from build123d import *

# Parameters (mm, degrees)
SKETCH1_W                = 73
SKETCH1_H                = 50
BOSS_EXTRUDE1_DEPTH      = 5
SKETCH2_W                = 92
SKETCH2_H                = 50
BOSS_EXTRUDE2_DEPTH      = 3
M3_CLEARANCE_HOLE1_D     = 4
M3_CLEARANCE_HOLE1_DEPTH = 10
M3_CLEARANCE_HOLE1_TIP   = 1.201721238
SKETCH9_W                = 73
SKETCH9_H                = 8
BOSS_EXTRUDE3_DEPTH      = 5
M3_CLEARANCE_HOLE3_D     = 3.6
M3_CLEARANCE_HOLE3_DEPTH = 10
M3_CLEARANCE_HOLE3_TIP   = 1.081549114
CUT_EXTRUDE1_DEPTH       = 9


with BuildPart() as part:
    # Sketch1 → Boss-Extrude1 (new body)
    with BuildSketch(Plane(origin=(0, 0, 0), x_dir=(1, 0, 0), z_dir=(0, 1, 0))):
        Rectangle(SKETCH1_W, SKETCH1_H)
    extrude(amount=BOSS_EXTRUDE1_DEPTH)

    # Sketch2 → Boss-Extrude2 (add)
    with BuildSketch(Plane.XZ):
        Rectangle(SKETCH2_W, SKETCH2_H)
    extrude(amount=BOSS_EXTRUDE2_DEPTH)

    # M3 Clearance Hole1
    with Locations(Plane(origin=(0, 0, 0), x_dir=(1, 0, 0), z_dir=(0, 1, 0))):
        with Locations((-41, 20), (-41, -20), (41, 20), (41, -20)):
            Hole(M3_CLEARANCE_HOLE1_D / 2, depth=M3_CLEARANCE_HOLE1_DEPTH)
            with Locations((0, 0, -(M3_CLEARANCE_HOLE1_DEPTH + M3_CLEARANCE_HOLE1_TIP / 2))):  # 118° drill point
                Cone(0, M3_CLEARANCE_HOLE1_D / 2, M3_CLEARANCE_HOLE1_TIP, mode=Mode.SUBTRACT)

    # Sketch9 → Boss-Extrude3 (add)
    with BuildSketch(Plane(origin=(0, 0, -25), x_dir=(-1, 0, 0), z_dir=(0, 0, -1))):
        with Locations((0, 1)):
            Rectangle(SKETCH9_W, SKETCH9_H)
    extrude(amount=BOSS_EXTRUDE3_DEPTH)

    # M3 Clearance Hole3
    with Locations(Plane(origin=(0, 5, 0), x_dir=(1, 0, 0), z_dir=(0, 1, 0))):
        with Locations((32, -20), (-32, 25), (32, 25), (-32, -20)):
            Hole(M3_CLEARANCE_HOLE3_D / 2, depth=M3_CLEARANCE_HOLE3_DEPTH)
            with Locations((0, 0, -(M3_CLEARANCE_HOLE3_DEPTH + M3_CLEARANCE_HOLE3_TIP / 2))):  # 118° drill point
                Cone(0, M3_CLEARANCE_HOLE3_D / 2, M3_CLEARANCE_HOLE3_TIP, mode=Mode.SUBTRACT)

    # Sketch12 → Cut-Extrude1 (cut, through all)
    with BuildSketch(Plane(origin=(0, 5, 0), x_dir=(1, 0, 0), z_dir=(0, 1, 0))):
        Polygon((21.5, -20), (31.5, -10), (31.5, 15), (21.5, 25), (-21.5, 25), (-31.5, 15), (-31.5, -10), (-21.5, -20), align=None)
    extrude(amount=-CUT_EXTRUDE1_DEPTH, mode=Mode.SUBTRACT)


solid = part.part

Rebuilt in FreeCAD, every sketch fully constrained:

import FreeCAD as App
import Part
import Sketcher
from FreeCAD import Vector
Q = App.Units.Quantity

doc = App.newDocument("Part")
body = doc.addObject("PartDesign::Body", "Body")

# Sketch on XZ plane
sketch1 = body.newObject("Sketcher::SketchObject", "Sketch")
sketch1.AttachmentSupport = (doc.getObject("XZ_Plane"), [""])
sketch1.MapMode = "FlatFace"
sketch1.addGeometry([
    Part.LineSegment(Vector(-36, -25, 0), Vector(-36, 25, 0)),
    Part.LineSegment(Vector(-36, 25, 0), Vector(36, 25, 0)),
    Part.LineSegment(Vector(36, 25, 0), Vector(36, -25, 0)),
    Part.LineSegment(Vector(36, -25, 0), Vector(-36, -25, 0)),
], False)
sketch1.addConstraint([
    Sketcher.Constraint("Coincident", 0, 2, 1, 1),
    Sketcher.Constraint("Coincident", 1, 2, 2, 1),
    Sketcher.Constraint("Coincident", 2, 2, 3, 1),
    Sketcher.Constraint("Coincident", 3, 2, 0, 1),
    Sketcher.Constraint("Vertical", 0),
    Sketcher.Constraint("Horizontal", 1),
    Sketcher.Constraint("Vertical", 2),
    Sketcher.Constraint("Horizontal", 3),
    Sketcher.Constraint("Symmetric", 0, 2, 2, 2, -1, 1),
    Sketcher.Constraint("DistanceX", 1, 1, 1, 2, Q("73 mm")),
    Sketcher.Constraint("DistanceY", 0, 1, 0, 2, Q("50 mm")),
])
pad1 = body.newObject("PartDesign::Pad", "Pad")
pad1.Profile = sketch1
pad1.Length = 5
pad1.Reversed = True

# Sketch on XZ plane
sketch2 = body.newObject("Sketcher::SketchObject", "Sketch001")
sketch2.AttachmentSupport = (doc.getObject("XZ_Plane"), [""])
sketch2.MapMode = "FlatFace"
sketch2.addGeometry([
    Part.LineSegment(Vector(-46, 25, 0), Vector(-46, -25, 0)),
    Part.LineSegment(Vector(-46, -25, 0), Vector(46, -25, 0)),
    Part.LineSegment(Vector(46, -25, 0), Vector(46, 25, 0)),
    Part.LineSegment(Vector(46, 25, 0), Vector(-46, 25, 0)),
], False)
sketch2.addConstraint([
    Sketcher.Constraint("Coincident", 0, 2, 1, 1),
    Sketcher.Constraint("Coincident", 1, 2, 2, 1),
    Sketcher.Constraint("Coincident", 2, 2, 3, 1),
    Sketcher.Constraint("Coincident", 3, 2, 0, 1),
    Sketcher.Constraint("Vertical", 0),
    Sketcher.Constraint("Horizontal", 1),
    Sketcher.Constraint("Vertical", 2),
    Sketcher.Constraint("Horizontal", 3),
    Sketcher.Constraint("Symmetric", 0, 2, 2, 2, -1, 1),
    Sketcher.Constraint("DistanceX", 1, 1, 1, 2, Q("92 mm")),
    Sketcher.Constraint("DistanceY", 0, 2, 0, 1, Q("50 mm")),
])
pad2 = body.newObject("PartDesign::Pad", "Pad001")
pad2.Profile = sketch2
pad2.Length = 3

# Sketch on XZ plane
sketch3 = body.newObject("Sketcher::SketchObject", "Sketch002")
sketch3.AttachmentSupport = (doc.getObject("XZ_Plane"), [""])
sketch3.MapMode = "FlatFace"
sketch3.addGeometry([
    Part.Circle(Vector(-41, -20, 0), Vector(0, 0, 1), 2),
    Part.Circle(Vector(-41, 20, 0), Vector(0, 0, 1), 2),
    Part.Circle(Vector(41, -20, 0), Vector(0, 0, 1), 2),
    Part.Circle(Vector(41, 20, 0), Vector(0, 0, 1), 2),
], False)
sketch3.addConstraint([
    Sketcher.Constraint("Equal", 0, 1),
    Sketcher.Constraint("Equal", 1, 2),
    Sketcher.Constraint("Equal", 2, 3),
    Sketcher.Constraint("Symmetric", 1, 3, 2, 3, -1, 1),
    Sketcher.Constraint("Symmetric", 0, 3, 3, 3, -1, 1),
    Sketcher.Constraint("Symmetric", 0, 3, 2, 3, -2),
    Sketcher.Constraint("Diameter", 0, Q("4 mm")),
    Sketcher.Constraint("DistanceX", 0, 3, -1, 1, Q("41 mm")),
    Sketcher.Constraint("DistanceY", 0, 3, -1, 1, Q("20 mm")),
])
doc.recompute()
hole = body.newObject("PartDesign::Hole", "Hole")
hole.Profile = sketch3
hole.ThreadType = "None"
hole.Diameter = 4
hole.DepthType = "Dimension"
hole.Depth = 10
hole.DrillPoint = "Angled"
hole.DrillPointAngle = 118
hole.Reversed = True

# Sketch on XY plane
sketch4 = body.newObject("Sketcher::SketchObject", "Sketch003")
sketch4.AttachmentSupport = (doc.getObject("XY_Plane"), [""])
sketch4.MapMode = "FlatFace"
sketch4.AttachmentOffset = App.Placement(Vector(0, 0, -25), App.Rotation())
sketch4.addGeometry([
    Part.LineSegment(Vector(36, 5, 0), Vector(36, -3, 0)),
    Part.LineSegment(Vector(36, -3, 0), Vector(-36, -3, 0)),
    Part.LineSegment(Vector(-36, -3, 0), Vector(-36, 5, 0)),
    Part.LineSegment(Vector(-36, 5, 0), Vector(36, 5, 0)),
], False)
sketch4.addConstraint([
    Sketcher.Constraint("Coincident", 0, 2, 1, 1),
    Sketcher.Constraint("Coincident", 1, 2, 2, 1),
    Sketcher.Constraint("Coincident", 2, 2, 3, 1),
    Sketcher.Constraint("Coincident", 3, 2, 0, 1),
    Sketcher.Constraint("Vertical", 0),
    Sketcher.Constraint("Horizontal", 1),
    Sketcher.Constraint("Vertical", 2),
    Sketcher.Constraint("Horizontal", 3),
    Sketcher.Constraint("DistanceX", 1, 2, 1, 1, Q("73 mm")),
    Sketcher.Constraint("DistanceY", 0, 2, 0, 1, Q("8 mm")),
    Sketcher.Constraint("DistanceY", 0, 2, -1, 1, Q("3 mm")),
    Sketcher.Constraint("DistanceX", -1, 1, 0, 2, Q("36.5 mm")),
])
pad3 = body.newObject("PartDesign::Pad", "Pad002")
pad3.Profile = sketch4
pad3.Length = 5
pad3.Reversed = True

# Sketch on XZ plane
sketch5 = body.newObject("Sketcher::SketchObject", "Sketch004")
sketch5.AttachmentSupport = (doc.getObject("XZ_Plane"), [""])
sketch5.MapMode = "FlatFace"
sketch5.AttachmentOffset = App.Placement(Vector(0, 0, -5), App.Rotation())
sketch5.addGeometry([
    Part.Circle(Vector(32, 20, 0), Vector(0, 0, 1), 1.8),
    Part.Circle(Vector(-32, -25, 0), Vector(0, 0, 1), 1.8),
    Part.Circle(Vector(32, -25, 0), Vector(0, 0, 1), 1.8),
    Part.Circle(Vector(-32, 20, 0), Vector(0, 0, 1), 1.8),
], False)
sketch5.addConstraint([
    Sketcher.Constraint("Equal", 0, 1),
    Sketcher.Constraint("Equal", 1, 2),
    Sketcher.Constraint("Equal", 2, 3),
    Sketcher.Constraint("Symmetric", 1, 3, 2, 3, -2),
    Sketcher.Constraint("Symmetric", 0, 3, 3, 3, -2),
    Sketcher.Constraint("Vertical", 0, 3, 2, 3),
    Sketcher.Constraint("Diameter", 0, Q("3.6 mm")),
    Sketcher.Constraint("DistanceX", -1, 1, 0, 3, Q("32 mm")),
    Sketcher.Constraint("DistanceY", -1, 1, 0, 3, Q("20 mm")),
    Sketcher.Constraint("DistanceY", 1, 3, -1, 1, Q("25 mm")),
])
doc.recompute()
hole2 = body.newObject("PartDesign::Hole", "Hole001")
hole2.Profile = sketch5
hole2.ThreadType = "None"
hole2.Diameter = 3.6
hole2.DepthType = "Dimension"
hole2.Depth = 10
hole2.DrillPoint = "Angled"
hole2.DrillPointAngle = 118
hole2.Reversed = True

# Sketch on XZ plane
sketch6 = body.newObject("Sketcher::SketchObject", "Sketch005")
sketch6.AttachmentSupport = (doc.getObject("XZ_Plane"), [""])
sketch6.MapMode = "FlatFace"
sketch6.AttachmentOffset = App.Placement(Vector(0, 0, -5), App.Rotation())
sketch6.addGeometry([
    Part.LineSegment(Vector(22, 20, 0), Vector(32, 10, 0)),  # 0
    Part.LineSegment(Vector(32, 10, 0), Vector(32, -15, 0)),  # 1
    Part.LineSegment(Vector(32, -15, 0), Vector(22, -25, 0)),  # 2
    Part.LineSegment(Vector(22, -25, 0), Vector(-22, -25, 0)),  # 3
    Part.LineSegment(Vector(-22, -25, 0), Vector(-32, -15, 0)),  # 4
    Part.LineSegment(Vector(-32, -15, 0), Vector(-32, 10, 0)),  # 5
    Part.LineSegment(Vector(-32, 10, 0), Vector(-22, 20, 0)),  # 6
    Part.LineSegment(Vector(-22, 20, 0), Vector(22, 20, 0)),  # 7
], False)
sketch6.addConstraint([
    Sketcher.Constraint("Coincident", 0, 2, 1, 1),
    Sketcher.Constraint("Coincident", 1, 2, 2, 1),
    Sketcher.Constraint("Coincident", 2, 2, 3, 1),
    Sketcher.Constraint("Coincident", 3, 2, 4, 1),
    Sketcher.Constraint("Coincident", 4, 2, 5, 1),
    Sketcher.Constraint("Coincident", 5, 2, 6, 1),
    Sketcher.Constraint("Coincident", 6, 2, 7, 1),
    Sketcher.Constraint("Coincident", 7, 2, 0, 1),
    Sketcher.Constraint("Vertical", 1),
    Sketcher.Constraint("Horizontal", 3),
    Sketcher.Constraint("Vertical", 5),
    Sketcher.Constraint("Horizontal", 7),
    Sketcher.Constraint("Symmetric", 1, 2, 4, 2, -2),
    Sketcher.Constraint("Perpendicular", 0, 2),
    Sketcher.Constraint("Perpendicular", 2, 4),
    Sketcher.Constraint("Perpendicular", 4, 6),
    Sketcher.Constraint("Horizontal", 0, 2, 5, 2),
    Sketcher.Constraint("Vertical", 3, 2, 6, 2),
    Sketcher.Constraint("Vertical", 2, 2, 7, 2),
    Sketcher.Constraint("DistanceX", 3, 2, 3, 1, Q("43 mm")),
    Sketcher.Constraint("DistanceY", 1, 2, 1, 1, Q("25 mm")),
    Sketcher.Constraint("DistanceY", -1, 1, 0, 2, Q("10 mm")),
    Sketcher.Constraint("DistanceY", 2, 2, -1, 1, Q("25 mm")),
])
pocket1 = body.newObject("PartDesign::Pocket", "Pocket")
pocket1.Profile = sketch6
pocket1.Type = "ThroughAll"
pocket1.Reversed = True

doc.recompute()
